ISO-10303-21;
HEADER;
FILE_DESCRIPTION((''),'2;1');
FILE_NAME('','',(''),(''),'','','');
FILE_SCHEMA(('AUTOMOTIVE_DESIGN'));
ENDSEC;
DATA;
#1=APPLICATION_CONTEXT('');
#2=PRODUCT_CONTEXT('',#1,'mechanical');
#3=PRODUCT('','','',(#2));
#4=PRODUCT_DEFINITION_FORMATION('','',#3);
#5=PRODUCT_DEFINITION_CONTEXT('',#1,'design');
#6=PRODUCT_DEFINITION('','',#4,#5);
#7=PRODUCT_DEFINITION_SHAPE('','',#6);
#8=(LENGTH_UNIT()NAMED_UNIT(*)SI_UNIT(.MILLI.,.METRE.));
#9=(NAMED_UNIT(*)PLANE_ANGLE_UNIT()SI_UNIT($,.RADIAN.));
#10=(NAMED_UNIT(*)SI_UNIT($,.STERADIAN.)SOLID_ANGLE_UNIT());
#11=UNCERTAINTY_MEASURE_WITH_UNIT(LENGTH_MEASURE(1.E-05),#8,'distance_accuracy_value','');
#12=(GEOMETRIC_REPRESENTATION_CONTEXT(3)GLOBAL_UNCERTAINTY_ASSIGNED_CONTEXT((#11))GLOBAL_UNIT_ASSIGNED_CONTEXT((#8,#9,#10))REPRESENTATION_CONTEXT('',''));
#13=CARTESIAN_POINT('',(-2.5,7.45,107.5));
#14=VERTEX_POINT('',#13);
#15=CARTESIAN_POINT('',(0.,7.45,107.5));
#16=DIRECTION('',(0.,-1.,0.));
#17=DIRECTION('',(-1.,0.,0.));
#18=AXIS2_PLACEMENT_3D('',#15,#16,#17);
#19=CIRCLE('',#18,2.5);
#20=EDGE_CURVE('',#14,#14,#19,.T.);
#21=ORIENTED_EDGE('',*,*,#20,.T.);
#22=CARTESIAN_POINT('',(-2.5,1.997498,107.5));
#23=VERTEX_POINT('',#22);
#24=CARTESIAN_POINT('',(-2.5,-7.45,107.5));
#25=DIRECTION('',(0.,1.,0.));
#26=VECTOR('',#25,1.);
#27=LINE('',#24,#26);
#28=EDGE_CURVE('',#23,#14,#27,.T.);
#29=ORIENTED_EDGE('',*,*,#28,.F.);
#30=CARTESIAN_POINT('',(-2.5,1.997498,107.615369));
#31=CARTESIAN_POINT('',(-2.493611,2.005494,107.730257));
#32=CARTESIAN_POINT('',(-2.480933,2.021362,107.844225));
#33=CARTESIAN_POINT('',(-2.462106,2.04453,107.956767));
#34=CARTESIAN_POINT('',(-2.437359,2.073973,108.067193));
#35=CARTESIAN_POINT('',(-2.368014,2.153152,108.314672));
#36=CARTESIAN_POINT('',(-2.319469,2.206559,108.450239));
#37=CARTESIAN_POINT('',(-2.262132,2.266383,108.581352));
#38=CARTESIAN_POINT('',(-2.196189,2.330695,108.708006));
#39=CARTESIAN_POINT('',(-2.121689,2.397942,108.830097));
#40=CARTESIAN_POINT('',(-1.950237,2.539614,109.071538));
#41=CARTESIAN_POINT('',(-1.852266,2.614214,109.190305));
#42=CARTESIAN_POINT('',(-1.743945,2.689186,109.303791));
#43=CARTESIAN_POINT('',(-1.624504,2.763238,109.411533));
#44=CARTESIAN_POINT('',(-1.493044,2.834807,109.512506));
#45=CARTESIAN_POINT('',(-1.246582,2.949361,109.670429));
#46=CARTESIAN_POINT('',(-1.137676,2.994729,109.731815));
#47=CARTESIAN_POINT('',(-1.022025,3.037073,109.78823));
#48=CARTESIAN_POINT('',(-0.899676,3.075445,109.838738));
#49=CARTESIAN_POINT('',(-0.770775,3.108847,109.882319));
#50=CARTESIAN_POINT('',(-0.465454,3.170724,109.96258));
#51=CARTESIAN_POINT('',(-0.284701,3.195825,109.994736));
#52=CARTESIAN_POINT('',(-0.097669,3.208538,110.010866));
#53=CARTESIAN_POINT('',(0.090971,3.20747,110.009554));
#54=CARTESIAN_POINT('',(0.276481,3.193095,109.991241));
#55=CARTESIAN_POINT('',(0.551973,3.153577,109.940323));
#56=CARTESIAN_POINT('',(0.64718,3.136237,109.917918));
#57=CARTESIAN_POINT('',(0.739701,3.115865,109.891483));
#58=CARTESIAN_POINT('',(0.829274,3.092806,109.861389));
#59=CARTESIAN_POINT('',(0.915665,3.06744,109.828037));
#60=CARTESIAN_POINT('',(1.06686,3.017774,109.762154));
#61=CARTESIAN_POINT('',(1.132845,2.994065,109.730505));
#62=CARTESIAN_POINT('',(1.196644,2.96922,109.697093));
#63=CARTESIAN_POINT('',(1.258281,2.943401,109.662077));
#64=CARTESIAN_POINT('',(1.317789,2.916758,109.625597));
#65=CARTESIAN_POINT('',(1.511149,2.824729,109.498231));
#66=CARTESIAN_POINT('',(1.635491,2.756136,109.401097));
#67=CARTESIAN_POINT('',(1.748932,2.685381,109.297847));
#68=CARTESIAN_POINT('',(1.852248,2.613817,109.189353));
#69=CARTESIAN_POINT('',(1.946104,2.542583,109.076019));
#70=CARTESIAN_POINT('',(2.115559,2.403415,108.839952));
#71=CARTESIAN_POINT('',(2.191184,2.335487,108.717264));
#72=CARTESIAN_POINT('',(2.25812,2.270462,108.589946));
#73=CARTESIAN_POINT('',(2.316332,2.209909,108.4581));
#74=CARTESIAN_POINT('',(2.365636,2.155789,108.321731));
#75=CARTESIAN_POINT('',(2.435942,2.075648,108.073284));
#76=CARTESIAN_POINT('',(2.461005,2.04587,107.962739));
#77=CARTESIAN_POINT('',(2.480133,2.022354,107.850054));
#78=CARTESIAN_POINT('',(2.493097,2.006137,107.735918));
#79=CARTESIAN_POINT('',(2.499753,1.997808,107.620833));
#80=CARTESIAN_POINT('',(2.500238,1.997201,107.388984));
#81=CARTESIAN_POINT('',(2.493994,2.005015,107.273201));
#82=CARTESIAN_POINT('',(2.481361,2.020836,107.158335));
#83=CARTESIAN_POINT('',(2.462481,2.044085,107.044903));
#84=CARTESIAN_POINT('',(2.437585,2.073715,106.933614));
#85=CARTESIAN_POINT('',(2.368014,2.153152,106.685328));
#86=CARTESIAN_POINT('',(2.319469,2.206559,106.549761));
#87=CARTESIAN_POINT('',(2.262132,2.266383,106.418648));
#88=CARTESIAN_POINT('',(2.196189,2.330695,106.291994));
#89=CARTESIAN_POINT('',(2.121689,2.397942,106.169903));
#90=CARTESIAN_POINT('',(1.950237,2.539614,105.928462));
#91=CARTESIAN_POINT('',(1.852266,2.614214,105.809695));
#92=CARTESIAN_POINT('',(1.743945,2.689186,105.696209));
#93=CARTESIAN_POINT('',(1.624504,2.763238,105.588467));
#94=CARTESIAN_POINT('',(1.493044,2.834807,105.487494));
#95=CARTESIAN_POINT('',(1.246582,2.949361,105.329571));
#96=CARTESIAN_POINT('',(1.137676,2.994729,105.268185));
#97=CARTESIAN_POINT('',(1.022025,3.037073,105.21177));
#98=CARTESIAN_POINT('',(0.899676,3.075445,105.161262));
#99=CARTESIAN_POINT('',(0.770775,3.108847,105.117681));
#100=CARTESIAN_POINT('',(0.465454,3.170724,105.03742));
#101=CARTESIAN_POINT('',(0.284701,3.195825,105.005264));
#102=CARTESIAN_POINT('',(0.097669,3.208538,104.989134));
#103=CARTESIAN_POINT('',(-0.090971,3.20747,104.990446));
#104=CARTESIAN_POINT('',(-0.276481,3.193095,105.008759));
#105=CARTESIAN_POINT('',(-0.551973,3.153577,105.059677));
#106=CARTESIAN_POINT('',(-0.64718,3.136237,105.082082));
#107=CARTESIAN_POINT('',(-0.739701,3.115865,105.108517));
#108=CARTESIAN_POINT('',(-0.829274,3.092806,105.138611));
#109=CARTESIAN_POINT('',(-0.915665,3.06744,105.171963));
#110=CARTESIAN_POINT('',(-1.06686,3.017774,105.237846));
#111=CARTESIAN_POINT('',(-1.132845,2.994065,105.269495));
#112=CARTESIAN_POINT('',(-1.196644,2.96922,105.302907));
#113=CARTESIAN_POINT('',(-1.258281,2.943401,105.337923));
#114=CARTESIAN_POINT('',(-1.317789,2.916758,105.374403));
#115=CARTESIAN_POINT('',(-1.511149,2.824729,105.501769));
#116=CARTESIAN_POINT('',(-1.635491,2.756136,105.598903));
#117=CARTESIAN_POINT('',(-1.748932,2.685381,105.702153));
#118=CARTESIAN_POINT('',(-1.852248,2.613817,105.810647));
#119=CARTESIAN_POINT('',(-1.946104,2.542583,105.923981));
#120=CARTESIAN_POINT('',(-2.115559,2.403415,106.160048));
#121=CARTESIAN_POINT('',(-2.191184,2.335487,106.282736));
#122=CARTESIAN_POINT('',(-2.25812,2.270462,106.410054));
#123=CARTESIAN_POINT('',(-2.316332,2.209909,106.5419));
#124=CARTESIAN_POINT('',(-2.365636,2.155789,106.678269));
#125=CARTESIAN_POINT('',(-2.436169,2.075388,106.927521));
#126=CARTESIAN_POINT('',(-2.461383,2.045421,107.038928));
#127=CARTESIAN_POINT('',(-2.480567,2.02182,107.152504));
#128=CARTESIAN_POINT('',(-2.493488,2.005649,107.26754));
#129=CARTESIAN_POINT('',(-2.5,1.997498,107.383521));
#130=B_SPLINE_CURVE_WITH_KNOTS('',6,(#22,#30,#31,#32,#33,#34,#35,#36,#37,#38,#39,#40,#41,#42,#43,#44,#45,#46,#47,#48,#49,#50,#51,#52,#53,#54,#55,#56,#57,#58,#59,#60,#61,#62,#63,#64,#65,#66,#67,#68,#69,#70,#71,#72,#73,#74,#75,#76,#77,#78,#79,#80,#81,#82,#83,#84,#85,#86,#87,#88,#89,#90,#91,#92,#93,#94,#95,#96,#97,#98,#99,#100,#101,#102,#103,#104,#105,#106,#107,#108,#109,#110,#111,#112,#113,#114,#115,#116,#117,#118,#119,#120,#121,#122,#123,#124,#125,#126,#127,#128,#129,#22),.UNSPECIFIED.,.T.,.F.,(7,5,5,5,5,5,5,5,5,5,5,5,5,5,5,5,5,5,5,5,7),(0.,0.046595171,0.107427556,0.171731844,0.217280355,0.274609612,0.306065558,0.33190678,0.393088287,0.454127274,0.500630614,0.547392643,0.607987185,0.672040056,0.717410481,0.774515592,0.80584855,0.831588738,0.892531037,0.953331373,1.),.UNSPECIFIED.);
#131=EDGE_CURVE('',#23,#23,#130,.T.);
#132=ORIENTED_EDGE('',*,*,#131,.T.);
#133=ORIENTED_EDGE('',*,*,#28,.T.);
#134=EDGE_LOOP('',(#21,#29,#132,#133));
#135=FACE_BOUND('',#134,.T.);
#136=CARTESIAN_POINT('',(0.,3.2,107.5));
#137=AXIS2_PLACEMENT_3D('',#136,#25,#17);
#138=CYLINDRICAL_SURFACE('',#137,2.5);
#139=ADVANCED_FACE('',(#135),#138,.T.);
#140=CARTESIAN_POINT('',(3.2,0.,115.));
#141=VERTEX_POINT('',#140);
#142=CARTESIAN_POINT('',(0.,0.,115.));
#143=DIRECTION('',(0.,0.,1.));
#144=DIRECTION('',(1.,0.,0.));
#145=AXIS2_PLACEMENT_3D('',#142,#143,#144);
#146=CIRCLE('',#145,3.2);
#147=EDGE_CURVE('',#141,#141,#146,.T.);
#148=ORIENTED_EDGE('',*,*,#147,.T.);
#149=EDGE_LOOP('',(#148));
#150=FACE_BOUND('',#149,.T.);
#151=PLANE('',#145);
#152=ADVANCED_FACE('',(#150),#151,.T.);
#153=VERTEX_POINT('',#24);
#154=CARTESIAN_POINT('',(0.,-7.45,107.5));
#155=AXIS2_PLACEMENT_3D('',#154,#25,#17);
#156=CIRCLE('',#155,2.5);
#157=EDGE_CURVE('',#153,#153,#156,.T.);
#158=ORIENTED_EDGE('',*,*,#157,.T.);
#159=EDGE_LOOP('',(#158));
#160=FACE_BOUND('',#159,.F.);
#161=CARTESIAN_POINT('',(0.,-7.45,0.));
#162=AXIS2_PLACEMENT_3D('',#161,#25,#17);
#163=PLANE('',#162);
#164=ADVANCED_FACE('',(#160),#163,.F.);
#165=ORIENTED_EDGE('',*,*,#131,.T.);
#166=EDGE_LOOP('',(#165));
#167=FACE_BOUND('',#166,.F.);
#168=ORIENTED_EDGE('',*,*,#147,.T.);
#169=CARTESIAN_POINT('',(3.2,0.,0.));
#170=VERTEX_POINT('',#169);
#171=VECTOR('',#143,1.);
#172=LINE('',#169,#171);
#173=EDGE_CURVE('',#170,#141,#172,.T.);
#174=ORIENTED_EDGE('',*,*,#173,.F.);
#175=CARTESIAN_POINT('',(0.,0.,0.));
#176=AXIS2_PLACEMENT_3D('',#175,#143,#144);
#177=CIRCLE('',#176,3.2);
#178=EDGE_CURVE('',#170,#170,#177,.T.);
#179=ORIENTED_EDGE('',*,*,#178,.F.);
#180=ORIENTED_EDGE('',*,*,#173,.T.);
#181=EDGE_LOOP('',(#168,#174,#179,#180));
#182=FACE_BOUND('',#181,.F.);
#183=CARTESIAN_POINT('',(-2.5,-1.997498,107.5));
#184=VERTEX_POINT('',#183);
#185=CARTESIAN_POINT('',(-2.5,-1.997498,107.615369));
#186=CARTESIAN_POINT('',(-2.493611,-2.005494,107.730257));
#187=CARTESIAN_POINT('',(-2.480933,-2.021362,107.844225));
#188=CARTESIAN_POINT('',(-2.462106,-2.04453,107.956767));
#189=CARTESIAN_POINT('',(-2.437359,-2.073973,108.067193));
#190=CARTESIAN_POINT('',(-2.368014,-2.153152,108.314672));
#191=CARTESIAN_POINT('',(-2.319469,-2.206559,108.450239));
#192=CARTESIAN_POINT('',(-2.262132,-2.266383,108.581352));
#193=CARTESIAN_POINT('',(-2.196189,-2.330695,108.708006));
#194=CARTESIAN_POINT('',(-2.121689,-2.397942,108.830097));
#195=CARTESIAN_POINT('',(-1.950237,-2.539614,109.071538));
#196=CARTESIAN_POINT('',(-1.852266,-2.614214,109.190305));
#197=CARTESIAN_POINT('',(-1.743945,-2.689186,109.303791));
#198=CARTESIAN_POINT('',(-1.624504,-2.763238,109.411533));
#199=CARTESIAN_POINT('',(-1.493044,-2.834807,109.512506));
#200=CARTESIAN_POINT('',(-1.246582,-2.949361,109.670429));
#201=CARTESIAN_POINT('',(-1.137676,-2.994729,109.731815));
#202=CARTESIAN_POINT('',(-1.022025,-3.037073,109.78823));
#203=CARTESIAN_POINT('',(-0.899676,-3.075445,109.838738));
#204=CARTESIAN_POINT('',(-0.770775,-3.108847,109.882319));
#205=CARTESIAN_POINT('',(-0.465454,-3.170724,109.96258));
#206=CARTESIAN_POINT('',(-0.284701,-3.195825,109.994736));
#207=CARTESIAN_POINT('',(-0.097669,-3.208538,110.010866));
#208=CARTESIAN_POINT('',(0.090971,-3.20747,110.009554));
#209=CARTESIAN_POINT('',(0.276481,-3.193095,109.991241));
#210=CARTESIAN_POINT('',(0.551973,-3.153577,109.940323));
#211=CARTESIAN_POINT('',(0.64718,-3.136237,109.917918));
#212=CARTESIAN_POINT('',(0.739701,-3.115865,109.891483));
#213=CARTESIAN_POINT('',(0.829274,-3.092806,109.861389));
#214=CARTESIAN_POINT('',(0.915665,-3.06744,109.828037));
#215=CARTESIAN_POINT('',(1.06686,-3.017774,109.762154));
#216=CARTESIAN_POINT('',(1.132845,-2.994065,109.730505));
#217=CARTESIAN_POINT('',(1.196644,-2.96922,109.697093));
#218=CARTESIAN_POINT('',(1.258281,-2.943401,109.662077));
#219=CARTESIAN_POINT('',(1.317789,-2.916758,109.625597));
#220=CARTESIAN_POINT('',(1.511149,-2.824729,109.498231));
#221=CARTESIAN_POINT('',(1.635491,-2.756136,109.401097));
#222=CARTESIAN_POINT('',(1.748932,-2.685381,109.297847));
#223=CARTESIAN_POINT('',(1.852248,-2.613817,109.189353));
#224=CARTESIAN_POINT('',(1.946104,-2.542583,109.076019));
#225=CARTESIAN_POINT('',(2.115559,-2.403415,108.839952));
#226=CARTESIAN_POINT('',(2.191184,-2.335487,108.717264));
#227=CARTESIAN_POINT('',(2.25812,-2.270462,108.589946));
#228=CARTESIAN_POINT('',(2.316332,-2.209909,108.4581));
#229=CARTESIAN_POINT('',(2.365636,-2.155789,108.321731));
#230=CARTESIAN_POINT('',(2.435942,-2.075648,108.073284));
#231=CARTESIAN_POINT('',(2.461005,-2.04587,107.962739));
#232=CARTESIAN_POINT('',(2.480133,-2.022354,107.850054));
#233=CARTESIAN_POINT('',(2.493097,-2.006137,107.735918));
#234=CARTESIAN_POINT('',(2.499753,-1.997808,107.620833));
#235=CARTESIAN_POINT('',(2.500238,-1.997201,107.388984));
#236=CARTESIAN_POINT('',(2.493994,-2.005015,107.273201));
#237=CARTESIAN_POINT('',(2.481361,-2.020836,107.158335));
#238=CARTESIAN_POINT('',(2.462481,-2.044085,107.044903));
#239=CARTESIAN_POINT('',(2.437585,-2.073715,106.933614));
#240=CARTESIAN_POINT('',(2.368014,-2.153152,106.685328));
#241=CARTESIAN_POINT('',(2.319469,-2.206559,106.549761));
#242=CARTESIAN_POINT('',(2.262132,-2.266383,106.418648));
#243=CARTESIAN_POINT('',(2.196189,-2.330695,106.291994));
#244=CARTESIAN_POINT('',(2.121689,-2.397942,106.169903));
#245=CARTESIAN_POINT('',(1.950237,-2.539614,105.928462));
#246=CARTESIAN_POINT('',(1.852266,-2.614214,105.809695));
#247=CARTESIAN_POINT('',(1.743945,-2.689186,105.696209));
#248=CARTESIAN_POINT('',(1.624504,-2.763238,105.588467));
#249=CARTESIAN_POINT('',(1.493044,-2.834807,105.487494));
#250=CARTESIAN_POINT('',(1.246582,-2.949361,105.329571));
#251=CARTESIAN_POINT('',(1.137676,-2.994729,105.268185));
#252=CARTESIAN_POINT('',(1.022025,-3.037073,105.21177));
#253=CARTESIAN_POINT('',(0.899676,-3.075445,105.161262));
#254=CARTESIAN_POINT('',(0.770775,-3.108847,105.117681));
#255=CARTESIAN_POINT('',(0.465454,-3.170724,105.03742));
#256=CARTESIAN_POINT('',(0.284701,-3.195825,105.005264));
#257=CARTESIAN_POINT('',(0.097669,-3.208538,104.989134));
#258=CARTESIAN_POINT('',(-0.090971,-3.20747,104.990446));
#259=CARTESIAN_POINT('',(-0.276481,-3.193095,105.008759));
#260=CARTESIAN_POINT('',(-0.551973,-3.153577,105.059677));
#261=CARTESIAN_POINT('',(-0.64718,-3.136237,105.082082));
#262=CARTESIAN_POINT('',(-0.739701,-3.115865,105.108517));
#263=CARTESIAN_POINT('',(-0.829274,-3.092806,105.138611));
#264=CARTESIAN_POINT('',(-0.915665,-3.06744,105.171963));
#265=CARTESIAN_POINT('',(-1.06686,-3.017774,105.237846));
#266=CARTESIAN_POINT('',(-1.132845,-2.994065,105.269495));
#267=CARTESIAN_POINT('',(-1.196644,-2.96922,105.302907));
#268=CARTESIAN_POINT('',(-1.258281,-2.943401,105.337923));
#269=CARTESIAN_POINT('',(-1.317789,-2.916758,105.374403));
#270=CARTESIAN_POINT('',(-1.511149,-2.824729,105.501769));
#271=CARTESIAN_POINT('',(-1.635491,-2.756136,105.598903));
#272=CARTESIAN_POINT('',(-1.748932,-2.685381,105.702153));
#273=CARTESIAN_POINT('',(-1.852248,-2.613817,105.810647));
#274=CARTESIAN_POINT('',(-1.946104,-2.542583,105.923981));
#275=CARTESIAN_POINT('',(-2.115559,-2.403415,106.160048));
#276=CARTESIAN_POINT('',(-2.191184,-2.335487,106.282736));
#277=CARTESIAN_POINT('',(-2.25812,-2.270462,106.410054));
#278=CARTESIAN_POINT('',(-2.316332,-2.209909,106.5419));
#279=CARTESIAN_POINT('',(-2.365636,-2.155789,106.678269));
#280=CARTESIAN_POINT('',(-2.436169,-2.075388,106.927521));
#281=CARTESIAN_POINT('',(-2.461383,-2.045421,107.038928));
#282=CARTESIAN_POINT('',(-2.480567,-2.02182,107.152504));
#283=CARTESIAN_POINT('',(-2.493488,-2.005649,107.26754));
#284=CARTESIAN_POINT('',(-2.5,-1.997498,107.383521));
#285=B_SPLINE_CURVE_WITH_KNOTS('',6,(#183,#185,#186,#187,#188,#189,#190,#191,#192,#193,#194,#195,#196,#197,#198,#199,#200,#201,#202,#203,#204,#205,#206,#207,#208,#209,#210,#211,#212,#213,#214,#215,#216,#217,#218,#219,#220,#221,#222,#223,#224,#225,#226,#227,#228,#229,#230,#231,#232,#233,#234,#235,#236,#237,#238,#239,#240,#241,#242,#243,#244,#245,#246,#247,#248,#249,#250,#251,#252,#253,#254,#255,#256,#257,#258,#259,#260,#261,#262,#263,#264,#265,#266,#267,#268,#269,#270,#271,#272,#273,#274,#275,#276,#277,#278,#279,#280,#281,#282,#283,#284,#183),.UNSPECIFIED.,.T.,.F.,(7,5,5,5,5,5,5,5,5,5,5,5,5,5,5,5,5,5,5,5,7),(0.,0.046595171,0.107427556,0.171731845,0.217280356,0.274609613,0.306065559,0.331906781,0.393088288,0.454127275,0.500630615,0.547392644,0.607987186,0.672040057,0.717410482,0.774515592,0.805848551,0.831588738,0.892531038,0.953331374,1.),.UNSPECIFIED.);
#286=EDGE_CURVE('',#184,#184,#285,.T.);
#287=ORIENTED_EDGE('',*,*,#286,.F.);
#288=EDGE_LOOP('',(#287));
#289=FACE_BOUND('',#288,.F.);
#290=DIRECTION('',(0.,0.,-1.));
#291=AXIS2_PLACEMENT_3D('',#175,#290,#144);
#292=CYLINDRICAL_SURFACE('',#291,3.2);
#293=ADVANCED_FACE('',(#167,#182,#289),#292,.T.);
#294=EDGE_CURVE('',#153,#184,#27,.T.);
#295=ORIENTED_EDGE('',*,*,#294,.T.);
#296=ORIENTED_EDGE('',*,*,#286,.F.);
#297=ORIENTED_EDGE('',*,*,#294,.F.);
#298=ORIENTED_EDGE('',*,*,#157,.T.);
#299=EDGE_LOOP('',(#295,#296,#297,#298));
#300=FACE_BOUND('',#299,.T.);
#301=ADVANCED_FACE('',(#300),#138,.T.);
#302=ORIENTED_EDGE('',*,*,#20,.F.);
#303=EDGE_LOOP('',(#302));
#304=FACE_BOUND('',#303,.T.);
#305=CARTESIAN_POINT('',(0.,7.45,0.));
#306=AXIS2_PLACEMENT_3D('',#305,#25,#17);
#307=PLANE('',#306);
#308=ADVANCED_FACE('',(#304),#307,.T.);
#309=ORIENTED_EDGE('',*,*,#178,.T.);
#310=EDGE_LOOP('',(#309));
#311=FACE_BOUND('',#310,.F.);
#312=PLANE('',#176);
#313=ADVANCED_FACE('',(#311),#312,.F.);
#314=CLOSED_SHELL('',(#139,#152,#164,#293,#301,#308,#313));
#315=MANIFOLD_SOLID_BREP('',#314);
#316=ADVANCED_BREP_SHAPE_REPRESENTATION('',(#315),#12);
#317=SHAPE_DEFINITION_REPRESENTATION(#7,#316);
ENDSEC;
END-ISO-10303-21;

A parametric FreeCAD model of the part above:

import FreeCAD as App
import Part
import Sketcher
from FreeCAD import Vector
Q = App.Units.Quantity

doc = App.newDocument("Part")
body = doc.addObject("PartDesign::Body", "Body")

# Sketch on XY plane
sketch1 = body.newObject("Sketcher::SketchObject", "Sketch")
sketch1.AttachmentSupport = (doc.getObject("XY_Plane"), [""])
sketch1.MapMode = "FlatFace"
sketch1.addGeometry(Part.Circle(Vector(0, 0, 0), Vector(0, 0, 1), 3.2), False)
sketch1.addConstraint(Sketcher.Constraint("Coincident", 0, 3, -1, 1))
sketch1.addConstraint(Sketcher.Constraint("Diameter", 0, Q("6.4 mm")))
pad1 = body.newObject("PartDesign::Pad", "Pad")
pad1.Profile = sketch1
pad1.Length = 115

# Sketch on XZ plane
sketch2 = body.newObject("Sketcher::SketchObject", "Sketch001")
sketch2.AttachmentSupport = (doc.getObject("XZ_Plane"), [""])
sketch2.MapMode = "FlatFace"
sketch2.AttachmentOffset = App.Placement(Vector(0, 0, -3.2), App.Rotation())
sketch2.addGeometry(Part.Circle(Vector(0, 107.5, 0), Vector(0, 0, 1), 2.5), False)
sketch2.addConstraint(Sketcher.Constraint("PointOnObject", 0, 3, -2))
sketch2.addConstraint(Sketcher.Constraint("Diameter", 0, Q("5 mm")))
sketch2.addConstraint(Sketcher.Constraint("DistanceY", -1, 1, 0, 3, Q("107.5 mm")))
pad2 = body.newObject("PartDesign::Pad", "Pad001")
pad2.Profile = sketch2
pad2.Type = "TwoLengths"
pad2.Length = 4.25
pad2.Length2 = 10.65
pad2.Reversed = True

doc.recompute()
